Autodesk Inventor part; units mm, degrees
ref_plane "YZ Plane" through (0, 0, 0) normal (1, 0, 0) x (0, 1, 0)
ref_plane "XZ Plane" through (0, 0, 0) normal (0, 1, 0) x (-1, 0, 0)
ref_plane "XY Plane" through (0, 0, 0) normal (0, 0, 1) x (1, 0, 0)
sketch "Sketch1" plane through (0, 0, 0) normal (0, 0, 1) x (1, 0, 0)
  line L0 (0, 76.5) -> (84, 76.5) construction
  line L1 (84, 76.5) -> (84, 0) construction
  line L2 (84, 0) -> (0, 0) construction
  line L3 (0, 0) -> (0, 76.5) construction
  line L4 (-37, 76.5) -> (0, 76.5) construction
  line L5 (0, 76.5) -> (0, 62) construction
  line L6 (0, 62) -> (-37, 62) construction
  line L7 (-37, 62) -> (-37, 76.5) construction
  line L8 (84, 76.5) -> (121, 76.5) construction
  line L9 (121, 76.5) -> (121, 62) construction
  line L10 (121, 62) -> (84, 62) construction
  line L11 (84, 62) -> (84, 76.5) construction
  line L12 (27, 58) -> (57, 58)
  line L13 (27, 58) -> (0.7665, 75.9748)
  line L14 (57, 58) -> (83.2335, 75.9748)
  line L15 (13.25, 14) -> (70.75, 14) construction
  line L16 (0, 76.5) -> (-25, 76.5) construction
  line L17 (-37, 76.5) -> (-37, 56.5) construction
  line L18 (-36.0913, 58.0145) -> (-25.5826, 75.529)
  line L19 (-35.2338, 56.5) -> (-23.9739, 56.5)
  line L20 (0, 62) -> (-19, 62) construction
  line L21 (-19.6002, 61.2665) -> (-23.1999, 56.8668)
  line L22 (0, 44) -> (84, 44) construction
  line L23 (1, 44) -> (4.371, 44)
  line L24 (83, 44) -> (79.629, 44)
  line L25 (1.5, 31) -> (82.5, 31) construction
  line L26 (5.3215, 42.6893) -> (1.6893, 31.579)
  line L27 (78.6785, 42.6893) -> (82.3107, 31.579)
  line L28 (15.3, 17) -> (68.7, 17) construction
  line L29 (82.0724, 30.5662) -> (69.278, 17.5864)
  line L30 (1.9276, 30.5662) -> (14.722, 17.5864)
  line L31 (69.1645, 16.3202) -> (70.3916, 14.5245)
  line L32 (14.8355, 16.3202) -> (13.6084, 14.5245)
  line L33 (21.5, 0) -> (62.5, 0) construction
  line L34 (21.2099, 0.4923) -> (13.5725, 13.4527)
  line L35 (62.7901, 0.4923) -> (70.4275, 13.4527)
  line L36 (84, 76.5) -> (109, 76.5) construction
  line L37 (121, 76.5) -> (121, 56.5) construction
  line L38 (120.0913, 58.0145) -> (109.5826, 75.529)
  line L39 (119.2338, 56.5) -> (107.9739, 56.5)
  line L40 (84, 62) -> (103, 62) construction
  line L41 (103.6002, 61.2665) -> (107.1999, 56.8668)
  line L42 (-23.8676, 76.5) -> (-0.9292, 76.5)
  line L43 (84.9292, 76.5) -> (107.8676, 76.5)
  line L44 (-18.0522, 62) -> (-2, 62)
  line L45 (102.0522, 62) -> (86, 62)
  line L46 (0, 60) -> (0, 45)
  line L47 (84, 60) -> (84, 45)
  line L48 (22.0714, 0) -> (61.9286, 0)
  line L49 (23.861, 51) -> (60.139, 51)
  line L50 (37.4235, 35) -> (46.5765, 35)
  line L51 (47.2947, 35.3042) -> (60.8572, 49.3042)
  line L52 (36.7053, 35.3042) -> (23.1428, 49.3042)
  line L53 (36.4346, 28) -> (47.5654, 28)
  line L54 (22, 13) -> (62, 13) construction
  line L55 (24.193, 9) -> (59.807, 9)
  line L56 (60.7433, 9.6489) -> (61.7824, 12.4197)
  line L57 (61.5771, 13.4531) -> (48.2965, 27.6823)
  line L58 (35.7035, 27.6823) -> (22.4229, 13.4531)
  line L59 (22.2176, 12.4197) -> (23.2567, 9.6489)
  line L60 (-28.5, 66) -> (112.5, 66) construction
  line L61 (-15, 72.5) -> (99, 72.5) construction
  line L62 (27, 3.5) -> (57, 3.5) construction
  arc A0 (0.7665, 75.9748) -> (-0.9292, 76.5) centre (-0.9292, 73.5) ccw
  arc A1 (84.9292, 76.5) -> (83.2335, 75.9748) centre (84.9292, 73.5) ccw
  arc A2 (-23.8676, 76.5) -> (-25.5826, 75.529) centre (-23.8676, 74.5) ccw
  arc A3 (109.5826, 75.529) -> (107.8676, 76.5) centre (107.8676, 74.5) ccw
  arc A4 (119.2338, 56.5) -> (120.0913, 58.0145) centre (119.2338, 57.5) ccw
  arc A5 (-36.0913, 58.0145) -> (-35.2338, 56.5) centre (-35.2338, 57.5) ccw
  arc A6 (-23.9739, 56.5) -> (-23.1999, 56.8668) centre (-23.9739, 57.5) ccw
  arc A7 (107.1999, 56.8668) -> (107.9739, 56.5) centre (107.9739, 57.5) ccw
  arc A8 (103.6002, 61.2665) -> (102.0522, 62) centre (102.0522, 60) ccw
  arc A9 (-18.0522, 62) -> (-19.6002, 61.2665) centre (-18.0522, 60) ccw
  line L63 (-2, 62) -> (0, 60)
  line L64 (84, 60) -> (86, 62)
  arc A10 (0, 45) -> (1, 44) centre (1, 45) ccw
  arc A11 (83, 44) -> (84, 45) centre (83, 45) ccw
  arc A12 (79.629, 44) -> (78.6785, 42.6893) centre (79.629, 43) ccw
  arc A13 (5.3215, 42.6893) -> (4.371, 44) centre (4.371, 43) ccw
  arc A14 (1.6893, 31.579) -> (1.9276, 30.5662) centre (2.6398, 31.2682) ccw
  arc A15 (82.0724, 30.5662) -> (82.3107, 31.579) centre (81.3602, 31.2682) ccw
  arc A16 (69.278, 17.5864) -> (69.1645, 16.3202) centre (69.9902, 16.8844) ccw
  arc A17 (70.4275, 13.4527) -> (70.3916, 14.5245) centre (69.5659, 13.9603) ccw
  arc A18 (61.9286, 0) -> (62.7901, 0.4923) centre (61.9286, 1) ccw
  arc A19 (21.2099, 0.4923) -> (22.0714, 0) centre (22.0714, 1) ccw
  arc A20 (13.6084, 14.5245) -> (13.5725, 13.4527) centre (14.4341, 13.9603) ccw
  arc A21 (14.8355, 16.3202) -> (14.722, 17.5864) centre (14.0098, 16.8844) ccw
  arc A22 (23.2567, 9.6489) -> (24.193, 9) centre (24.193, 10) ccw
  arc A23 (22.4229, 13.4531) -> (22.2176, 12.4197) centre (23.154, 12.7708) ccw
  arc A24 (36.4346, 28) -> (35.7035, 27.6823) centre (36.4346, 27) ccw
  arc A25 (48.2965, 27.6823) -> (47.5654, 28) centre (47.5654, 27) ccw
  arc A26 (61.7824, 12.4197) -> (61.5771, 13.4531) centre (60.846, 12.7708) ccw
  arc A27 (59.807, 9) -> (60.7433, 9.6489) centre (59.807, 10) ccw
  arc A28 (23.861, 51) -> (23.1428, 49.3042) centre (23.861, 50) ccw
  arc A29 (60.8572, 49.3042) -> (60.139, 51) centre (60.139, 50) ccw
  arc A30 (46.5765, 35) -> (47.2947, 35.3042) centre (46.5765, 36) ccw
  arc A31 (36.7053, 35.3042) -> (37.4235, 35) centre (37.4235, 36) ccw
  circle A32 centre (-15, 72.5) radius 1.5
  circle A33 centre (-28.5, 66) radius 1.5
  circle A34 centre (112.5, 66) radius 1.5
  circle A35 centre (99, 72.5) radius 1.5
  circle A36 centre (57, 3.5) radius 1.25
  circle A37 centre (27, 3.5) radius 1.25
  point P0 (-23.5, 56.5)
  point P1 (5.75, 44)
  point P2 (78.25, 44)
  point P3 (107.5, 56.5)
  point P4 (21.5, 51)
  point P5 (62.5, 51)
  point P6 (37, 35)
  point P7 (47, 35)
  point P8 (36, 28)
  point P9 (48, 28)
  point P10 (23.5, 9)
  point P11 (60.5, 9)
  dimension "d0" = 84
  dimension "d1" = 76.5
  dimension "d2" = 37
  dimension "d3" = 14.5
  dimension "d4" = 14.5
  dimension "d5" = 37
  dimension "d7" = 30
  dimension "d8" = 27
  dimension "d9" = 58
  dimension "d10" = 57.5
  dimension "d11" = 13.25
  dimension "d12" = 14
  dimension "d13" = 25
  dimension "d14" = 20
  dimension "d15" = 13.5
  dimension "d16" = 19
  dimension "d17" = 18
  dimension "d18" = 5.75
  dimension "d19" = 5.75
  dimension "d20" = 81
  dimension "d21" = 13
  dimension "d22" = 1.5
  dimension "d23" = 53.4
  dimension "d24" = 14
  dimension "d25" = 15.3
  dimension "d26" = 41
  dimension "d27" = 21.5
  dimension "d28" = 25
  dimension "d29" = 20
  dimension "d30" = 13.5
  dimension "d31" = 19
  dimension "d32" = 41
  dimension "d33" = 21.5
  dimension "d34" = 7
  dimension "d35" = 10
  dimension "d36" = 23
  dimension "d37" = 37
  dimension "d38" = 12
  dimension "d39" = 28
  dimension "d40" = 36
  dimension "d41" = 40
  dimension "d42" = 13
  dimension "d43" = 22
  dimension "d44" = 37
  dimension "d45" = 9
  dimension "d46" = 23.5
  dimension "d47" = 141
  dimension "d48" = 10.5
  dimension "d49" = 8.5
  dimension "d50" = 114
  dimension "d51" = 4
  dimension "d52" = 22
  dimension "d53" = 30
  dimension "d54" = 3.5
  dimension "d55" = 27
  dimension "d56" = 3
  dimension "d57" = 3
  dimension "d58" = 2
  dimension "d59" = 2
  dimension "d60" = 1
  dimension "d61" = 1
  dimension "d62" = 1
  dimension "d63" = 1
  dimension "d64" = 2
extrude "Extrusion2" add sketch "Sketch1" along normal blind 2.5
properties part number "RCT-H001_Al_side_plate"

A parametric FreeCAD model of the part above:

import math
import FreeCAD as App
import Part
import Sketcher
Q = App.Units.Quantity

doc = App.newDocument("Part")
body = doc.addObject("PartDesign::Body", "Body")

sketch1 = body.newObject("Sketcher::SketchObject", "Sketch")
sketch1.AttachmentSupport = (doc.getObject("XY_Plane"), [""])
sketch1.MapMode = "FlatFace"
sketch1.addGeometry([
    Part.LineSegment(App.Vector(57, 58, 0), App.Vector(27, 58, 0)),
    Part.LineSegment(App.Vector(27, 58, 0), App.Vector(0.8, 76, 0)),
    Part.ArcOfCircle(Part.Circle(App.Vector(-0.9, 73.5, 0), App.Vector(0, 0, 1), 3), math.radians(56), math.radians(90)),
    Part.LineSegment(App.Vector(-0.9, 76.5, 0), App.Vector(-23.9, 76.5, 0)),
    Part.ArcOfCircle(Part.Circle(App.Vector(-23.9, 74.5, 0), App.Vector(0, 0, 1), 2), math.radians(90), math.radians(149)),
    Part.LineSegment(App.Vector(-25.6, 75.5, 0), App.Vector(-36.1, 58, 0)),
    Part.ArcOfCircle(Part.Circle(App.Vector(-35.2, 57.5, 0), App.Vector(0, 0, 1), 1), math.radians(149), math.radians(270)),
    Part.LineSegment(App.Vector(-35.2, 56.5, 0), App.Vector(-24, 56.5, 0)),
    Part.ArcOfCircle(Part.Circle(App.Vector(-24, 57.5, 0), App.Vector(0, 0, 1), 1), math.radians(-90), math.radians(-39)),
    Part.LineSegment(App.Vector(-23.2, 56.9, 0), App.Vector(-19.6, 61.3, 0)),
    Part.ArcOfCircle(Part.Circle(App.Vector(-18.1, 60, 0), App.Vector(0, 0, 1), 2), math.radians(90), math.radians(141)),
    Part.LineSegment(App.Vector(-18.1, 62, 0), App.Vector(-2, 62, 0)),
    Part.LineSegment(App.Vector(-2, 62, 0), App.Vector(0, 60, 0)),
    Part.LineSegment(App.Vector(0, 60, 0), App.Vector(0, 45, 0)),
    Part.ArcOfCircle(Part.Circle(App.Vector(1, 45, 0), App.Vector(0, 0, 1), 1), math.radians(180), math.radians(270)),
    Part.LineSegment(App.Vector(1, 44, 0), App.Vector(4.4, 44, 0)),
    Part.ArcOfCircle(Part.Circle(App.Vector(4.4, 43, 0), App.Vector(0, 0, 1), 1), math.radians(-18), math.radians(90)),
    Part.LineSegment(App.Vector(5.3, 42.7, 0), App.Vector(1.7, 31.6, 0)),
    Part.ArcOfCircle(Part.Circle(App.Vector(2.6, 31.3, 0), App.Vector(0, 0, 1), 1), math.radians(162), math.radians(225)),
    Part.LineSegment(App.Vector(1.9, 30.6, 0), App.Vector(14.7, 17.6, 0)),
    Part.ArcOfCircle(Part.Circle(App.Vector(14, 16.9, 0), App.Vector(0, 0, 1), 1), math.radians(-34), math.radians(45)),
    Part.LineSegment(App.Vector(14.8, 16.3, 0), App.Vector(13.6, 14.5, 0)),
    Part.ArcOfCircle(Part.Circle(App.Vector(14.4, 14, 0), App.Vector(0, 0, 1), 1), math.radians(146), math.radians(211)),
    Part.LineSegment(App.Vector(13.6, 13.5, 0), App.Vector(21.2, 0.5, 0)),
    Part.ArcOfCircle(Part.Circle(App.Vector(22.1, 1, 0), App.Vector(0, 0, 1), 1), math.radians(-149), math.radians(-90)),
    Part.LineSegment(App.Vector(22.1, 0, 0), App.Vector(61.9, 0, 0)),
    Part.ArcOfCircle(Part.Circle(App.Vector(61.9, 1, 0), App.Vector(0, 0, 1), 1), math.radians(-90), math.radians(-31)),
    Part.LineSegment(App.Vector(62.8, 0.5, 0), App.Vector(70.4, 13.5, 0)),
    Part.ArcOfCircle(Part.Circle(App.Vector(69.6, 14, 0), App.Vector(0, 0, 1), 1), math.radians(-31), math.radians(34)),
    Part.LineSegment(App.Vector(70.4, 14.5, 0), App.Vector(69.2, 16.3, 0)),
    Part.ArcOfCircle(Part.Circle(App.Vector(70, 16.9, 0), App.Vector(0, 0, 1), 1), math.radians(135), math.radians(214)),
    Part.LineSegment(App.Vector(69.3, 17.6, 0), App.Vector(82.1, 30.6, 0)),
    Part.ArcOfCircle(Part.Circle(App.Vector(81.4, 31.3, 0), App.Vector(0, 0, 1), 1), math.radians(-45), math.radians(18)),
    Part.LineSegment(App.Vector(82.3, 31.6, 0), App.Vector(78.7, 42.7, 0)),
    Part.ArcOfCircle(Part.Circle(App.Vector(79.6, 43, 0), App.Vector(0, 0, 1), 1), math.radians(90), math.radians(198)),
    Part.LineSegment(App.Vector(79.6, 44, 0), App.Vector(83, 44, 0)),
    Part.ArcOfCircle(Part.Circle(App.Vector(83, 45, 0), App.Vector(0, 0, 1), 1), math.radians(-90), math.radians(0)),
    Part.LineSegment(App.Vector(84, 45, 0), App.Vector(84, 60, 0)),
    Part.LineSegment(App.Vector(84, 60, 0), App.Vector(86, 62, 0)),
    Part.LineSegment(App.Vector(86, 62, 0), App.Vector(102.1, 62, 0)),
    Part.ArcOfCircle(Part.Circle(App.Vector(102.1, 60, 0), App.Vector(0, 0, 1), 2), math.radians(39), math.radians(90)),
    Part.LineSegment(App.Vector(103.6, 61.3, 0), App.Vector(107.2, 56.9, 0)),
    Part.ArcOfCircle(Part.Circle(App.Vector(108, 57.5, 0), App.Vector(0, 0, 1), 1), math.radians(-141), math.radians(-90)),
    Part.LineSegment(App.Vector(108, 56.5, 0), App.Vector(119.2, 56.5, 0)),
    Part.ArcOfCircle(Part.Circle(App.Vector(119.2, 57.5, 0), App.Vector(0, 0, 1), 1), math.radians(-90), math.radians(31)),
    Part.LineSegment(App.Vector(120.1, 58, 0), App.Vector(109.6, 75.5, 0)),
    Part.ArcOfCircle(Part.Circle(App.Vector(107.9, 74.5, 0), App.Vector(0, 0, 1), 2), math.radians(31), math.radians(90)),
    Part.LineSegment(App.Vector(107.9, 76.5, 0), App.Vector(84.9, 76.5, 0)),
    Part.ArcOfCircle(Part.Circle(App.Vector(84.9, 73.5, 0), App.Vector(0, 0, 1), 3), math.radians(90), math.radians(124)),
    Part.LineSegment(App.Vector(83.2, 76, 0), App.Vector(57, 58, 0)),
    Part.Circle(App.Vector(27, 3.5, 0), App.Vector(0, 0, 1), 1.2),
    Part.Circle(App.Vector(57, 3.5, 0), App.Vector(0, 0, 1), 1.2),
    Part.ArcOfCircle(Part.Circle(App.Vector(36.4, 27, 0), App.Vector(0, 0, 1), 1), math.radians(90), math.radians(137)),
    Part.LineSegment(App.Vector(36.4, 28, 0), App.Vector(47.6, 28, 0)),
    Part.ArcOfCircle(Part.Circle(App.Vector(47.6, 27, 0), App.Vector(0, 0, 1), 1), math.radians(43), math.radians(90)),
    Part.LineSegment(App.Vector(48.3, 27.7, 0), App.Vector(61.6, 13.5, 0)),
    Part.ArcOfCircle(Part.Circle(App.Vector(60.8, 12.8, 0), App.Vector(0, 0, 1), 1), math.radians(-21), math.radians(43)),
    Part.LineSegment(App.Vector(61.8, 12.4, 0), App.Vector(60.7, 9.6, 0)),
    Part.ArcOfCircle(Part.Circle(App.Vector(59.8, 10, 0), App.Vector(0, 0, 1), 1), math.radians(-90), math.radians(-21)),
    Part.LineSegment(App.Vector(59.8, 9, 0), App.Vector(24.2, 9, 0)),
    Part.ArcOfCircle(Part.Circle(App.Vector(24.2, 10, 0), App.Vector(0, 0, 1), 1), math.radians(-159), math.radians(-90)),
    Part.LineSegment(App.Vector(23.3, 9.6, 0), App.Vector(22.2, 12.4, 0)),
    Part.ArcOfCircle(Part.Circle(App.Vector(23.2, 12.8, 0), App.Vector(0, 0, 1), 1), math.radians(137), math.radians(201)),
    Part.LineSegment(App.Vector(22.4, 13.5, 0), App.Vector(35.7, 27.7, 0)),
    Part.ArcOfCircle(Part.Circle(App.Vector(23.9, 50, 0), App.Vector(0, 0, 1), 1), math.radians(90), math.radians(224)),
    Part.LineSegment(App.Vector(23.9, 51, 0), App.Vector(60.1, 51, 0)),
    Part.ArcOfCircle(Part.Circle(App.Vector(60.1, 50, 0), App.Vector(0, 0, 1), 1), math.radians(-44), math.radians(90)),
    Part.LineSegment(App.Vector(60.9, 49.3, 0), App.Vector(47.3, 35.3, 0)),
    Part.ArcOfCircle(Part.Circle(App.Vector(46.6, 36, 0), App.Vector(0, 0, 1), 1), math.radians(-90), math.radians(-44)),
    Part.LineSegment(App.Vector(46.6, 35, 0), App.Vector(37.4, 35, 0)),
    Part.ArcOfCircle(Part.Circle(App.Vector(37.4, 36, 0), App.Vector(0, 0, 1), 1), math.radians(-136), math.radians(-90)),
    Part.LineSegment(App.Vector(36.7, 35.3, 0), App.Vector(23.1, 49.3, 0)),
    Part.Circle(App.Vector(-28.5, 66, 0), App.Vector(0, 0, 1), 1.5),
    Part.Circle(App.Vector(-15, 72.5, 0), App.Vector(0, 0, 1), 1.5),
    Part.Circle(App.Vector(112.5, 66, 0), App.Vector(0, 0, 1), 1.5),
    Part.Circle(App.Vector(99, 72.5, 0), App.Vector(0, 0, 1), 1.5),
], False)
sketch1.addConstraint([
    Sketcher.Constraint("Coincident", 0, 2, 1, 1),
    Sketcher.Constraint("Tangent", 1, 2, 2, 1),
    Sketcher.Constraint("Tangent", 2, 2, 3, 1),
    Sketcher.Constraint("Tangent", 3, 2, 4, 1),
    Sketcher.Constraint("Tangent", 4, 2, 5, 1),
    Sketcher.Constraint("Tangent", 5, 2, 6, 1),
    Sketcher.Constraint("Tangent", 6, 2, 7, 1),
    Sketcher.Constraint("Tangent", 7, 2, 8, 1),
    Sketcher.Constraint("Tangent", 8, 2, 9, 1),
    Sketcher.Constraint("Tangent", 9, 2, 10, 2),
    Sketcher.Constraint("Tangent", 10, 1, 11, 1),
    Sketcher.Constraint("Coincident", 11, 2, 12, 1),
    Sketcher.Constraint("Coincident", 12, 2, 13, 1),
    Sketcher.Constraint("Tangent", 13, 2, 14, 1),
    Sketcher.Constraint("Tangent", 14, 2, 15, 1),
    Sketcher.Constraint("Tangent", 15, 2, 16, 2),
    Sketcher.Constraint("Tangent", 16, 1, 17, 1),
    Sketcher.Constraint("Tangent", 17, 2, 18, 1),
    Sketcher.Constraint("Tangent", 18, 2, 19, 1),
    Sketcher.Constraint("Tangent", 19, 2, 20, 2),
    Sketcher.Constraint("Tangent", 20, 1, 21, 1),
    Sketcher.Constraint("Tangent", 21, 2, 22, 1),
    Sketcher.Constraint("Tangent", 22, 2, 23, 1),
    Sketcher.Constraint("Tangent", 23, 2, 24, 1),
    Sketcher.Constraint("Tangent", 24, 2, 25, 1),
    Sketcher.Constraint("Tangent", 25, 2, 26, 1),
    Sketcher.Constraint("Tangent", 26, 2, 27, 1),
    Sketcher.Constraint("Tangent", 27, 2, 28, 1),
    Sketcher.Constraint("Tangent", 28, 2, 29, 1),
    Sketcher.Constraint("Tangent", 29, 2, 30, 2),
    Sketcher.Constraint("Tangent", 30, 1, 31, 1),
    Sketcher.Constraint("Tangent", 31, 2, 32, 1),
    Sketcher.Constraint("Tangent", 32, 2, 33, 1),
    Sketcher.Constraint("Tangent", 33, 2, 34, 2),
    Sketcher.Constraint("Tangent", 34, 1, 35, 1),
    Sketcher.Constraint("Tangent", 35, 2, 36, 1),
    Sketcher.Constraint("Tangent", 36, 2, 37, 1),
    Sketcher.Constraint("Coincident", 37, 2, 38, 1),
    Sketcher.Constraint("Coincident", 38, 2, 39, 1),
    Sketcher.Constraint("Tangent", 39, 2, 40, 2),
    Sketcher.Constraint("Tangent", 40, 1, 41, 1),
    Sketcher.Constraint("Tangent", 41, 2, 42, 1),
    Sketcher.Constraint("Tangent", 42, 2, 43, 1),
    Sketcher.Constraint("Tangent", 43, 2, 44, 1),
    Sketcher.Constraint("Tangent", 44, 2, 45, 1),
    Sketcher.Constraint("Tangent", 45, 2, 46, 1),
    Sketcher.Constraint("Tangent", 46, 2, 47, 1),
    Sketcher.Constraint("Tangent", 47, 2, 48, 1),
    Sketcher.Constraint("Tangent", 48, 2, 49, 1),
    Sketcher.Constraint("Coincident", 49, 2, 0, 1),
    Sketcher.Constraint("Tangent", 52, 1, 53, 1),
    Sketcher.Constraint("Tangent", 53, 2, 54, 2),
    Sketcher.Constraint("Tangent", 54, 1, 55, 1),
    Sketcher.Constraint("Tangent", 55, 2, 56, 2),
    Sketcher.Constraint("Tangent", 56, 1, 57, 1),
    Sketcher.Constraint("Tangent", 57, 2, 58, 2),
    Sketcher.Constraint("Tangent", 58, 1, 59, 1),
    Sketcher.Constraint("Tangent", 59, 2, 60, 2),
    Sketcher.Constraint("Tangent", 60, 1, 61, 1),
    Sketcher.Constraint("Tangent", 61, 2, 62, 2),
    Sketcher.Constraint("Tangent", 62, 1, 63, 1),
    Sketcher.Constraint("Tangent", 63, 2, 52, 2),
    Sketcher.Constraint("Tangent", 64, 1, 65, 1),
    Sketcher.Constraint("Tangent", 65, 2, 66, 2),
    Sketcher.Constraint("Tangent", 66, 1, 67, 1),
    Sketcher.Constraint("Tangent", 67, 2, 68, 2),
    Sketcher.Constraint("Tangent", 68, 1, 69, 1),
    Sketcher.Constraint("Tangent", 69, 2, 70, 2),
    Sketcher.Constraint("Tangent", 70, 1, 71, 1),
    Sketcher.Constraint("Tangent", 71, 2, 64, 2),
    Sketcher.Constraint("Horizontal", 0),
    Sketcher.Constraint("Horizontal", 3),
    Sketcher.Constraint("Horizontal", 7),
    Sketcher.Constraint("Horizontal", 11),
    Sketcher.Constraint("Vertical", 13),
    Sketcher.Constraint("Horizontal", 15),
    Sketcher.Constraint("Horizontal", 25),
    Sketcher.Constraint("Horizontal", 35),
    Sketcher.Constraint("Vertical", 37),
    Sketcher.Constraint("Horizontal", 39),
    Sketcher.Constraint("Horizontal", 43),
    Sketcher.Constraint("Horizontal", 47),
    Sketcher.Constraint("Horizontal", 53),
    Sketcher.Constraint("Horizontal", 59),
    Sketcher.Constraint("Horizontal", 65),
    Sketcher.Constraint("Horizontal", 69),
    Sketcher.Constraint("Equal", 6, 8),
    Sketcher.Constraint("Equal", 4, 10),
    Sketcher.Constraint("Equal", 8, 14),
    Sketcher.Constraint("Equal", 14, 16),
    Sketcher.Constraint("Equal", 16, 18),
    Sketcher.Constraint("Equal", 18, 20),
    Sketcher.Constraint("Equal", 20, 22),
    Sketcher.Constraint("Equal", 22, 24),
    Sketcher.Constraint("Equal", 24, 26),
    Sketcher.Constraint("Equal", 26, 28),
    Sketcher.Constraint("Equal", 28, 30),
    Sketcher.Constraint("Equal", 30, 32),
    Sketcher.Constraint("Equal", 32, 34),
    Sketcher.Constraint("Equal", 34, 36),
    Sketcher.Constraint("Equal", 10, 40),
    Sketcher.Constraint("Equal", 36, 42),
    Sketcher.Constraint("Equal", 42, 44),
    Sketcher.Constraint("Equal", 40, 46),
    Sketcher.Constraint("Equal", 2, 48),
    Sketcher.Constraint("Equal", 50, 51),
    Sketcher.Constraint("Equal", 44, 52),
    Sketcher.Constraint("Equal", 52, 54),
    Sketcher.Constraint("Equal", 54, 56),
    Sketcher.Constraint("Equal", 56, 58),
    Sketcher.Constraint("Equal", 58, 60),
    Sketcher.Constraint("Equal", 60, 62),
    Sketcher.Constraint("Equal", 62, 64),
    Sketcher.Constraint("Equal", 64, 66),
    Sketcher.Constraint("Equal", 66, 68),
    Sketcher.Constraint("Equal", 68, 70),
    Sketcher.Constraint("Equal", 72, 73),
    Sketcher.Constraint("Equal", 73, 74),
    Sketcher.Constraint("Equal", 74, 75),
    Sketcher.Constraint("PointOnObject", 12, 2, -2),
    Sketcher.Constraint("PointOnObject", 24, 2, -1),
    Sketcher.Constraint("Perpendicular", 12, 38),
    Sketcher.Constraint("Horizontal", 22, 3, 28, 3),
    Sketcher.Constraint("Horizontal", 20, 3, 30, 3),
    Sketcher.Constraint("Horizontal", 18, 3, 32, 3),
    Sketcher.Constraint("Horizontal", 16, 3, 34, 3),
    Sketcher.Constraint("Horizontal", 10, 3, 40, 3),
    Sketcher.Constraint("Horizontal", 8, 3, 42, 3),
    Sketcher.Constraint("Horizontal", 4, 3, 46, 3),
    Sketcher.Constraint("Horizontal", 50, 3, 51, 3),
    Sketcher.Constraint("Horizontal", 56, 3, 62, 3),
    Sketcher.Constraint("Horizontal", 72, 3, 74, 3),
    Sketcher.Constraint("Horizontal", 73, 3, 75, 3),
    Sketcher.Constraint("Horizontal", 40, 3, 12, 2),
    Sketcher.Constraint("Horizontal", 23, 2, 26, 2),
    Sketcher.Constraint("Horizontal", 21, 2, 28, 2),
    Sketcher.Constraint("Horizontal", 19, 2, 30, 1),
    Sketcher.Constraint("Horizontal", 17, 2, 32, 2),
    Sketcher.Constraint("Horizontal", 12, 2, 37, 2),
    Sketcher.Constraint("Horizontal", 9, 2, 40, 1),
    Sketcher.Constraint("Horizontal", 5, 2, 44, 2),
    Sketcher.Constraint("Horizontal", 1, 2, 48, 2),
    Sketcher.Constraint("Horizontal", 57, 2, 60, 1),
    Sketcher.Constraint("Horizontal", 55, 2, 62, 1),
    Sketcher.Constraint("Horizontal", 67, 2, 70, 1),
    Sketcher.Constraint("Vertical", 50, 3, 0, 2),
    Sketcher.Constraint("Vertical", 51, 3, 49, 2),
    Sketcher.Constraint("Equal", 15, 35),
    Sketcher.Constraint("Equal", 11, 39),
    Sketcher.Constraint("Equal", 7, 43),
    Sketcher.Constraint("Equal", 3, 47),
    Sketcher.Constraint("Equal", 12, 38),
    Sketcher.Constraint("Diameter", 72, 3.0),
    Sketcher.Constraint("Radius", 2, 3.0),
    Sketcher.Constraint("Radius", 4, 2.0),
    Sketcher.Constraint("Radius", 6, 1.0),
    Sketcher.Constraint("DistanceX", 0, 2, 0, 1, 30.0),
    Sketcher.Constraint("DistanceX", -1, 1, 50, 3, 27.0),
    Sketcher.Constraint("DistanceY", -1, 1, 52, 3, 27.0),
    Sketcher.Constraint("DistanceY", -1, 1, 58, 3, 10.0),
    Sketcher.Constraint("DistanceY", -1, 1, 68, 3, 36.0),
    Sketcher.Constraint("DistanceY", -1, 1, 0, 2, 58.0),
    Sketcher.Constraint("Diameter", 50, 2.5),
    Sketcher.Constraint("DistanceY", -1, 1, 6, 3, 57.5),
    Sketcher.Constraint("DistanceY", -1, 1, 50, 3, 3.5),
    Sketcher.Constraint("DistanceY", -1, 1, 2, 2, 76.5),
    Sketcher.Constraint("DistanceY", 13, 2, 13, 1, 15.0),
    Sketcher.Constraint("DistanceY", -1, 1, 10, 3, 60.0),
    Sketcher.Constraint("DistanceY", -1, 1, 64, 3, 50.0),
    Sketcher.Constraint("DistanceY", -1, 1, 72, 3, 66.0),
    Sketcher.Constraint("DistanceX", 73, 3, -1, 1, 15.0),
    Sketcher.Constraint("DistanceX", -1, 1, 75, 3, 99.0),
    Sketcher.Constraint("DistanceX", 7, 1, 7, 2, 11.26),
    Sketcher.Constraint("DistanceX", 72, 3, -1, 1, 28.5),
    Sketcher.Constraint("DistanceY", -1, 1, 73, 3, 72.5),
    Sketcher.Constraint("DistanceX", -1, 1, 74, 3, 112.5),
    Sketcher.Constraint("DistanceX", 8, 2, -1, 1, 23.2),
    Sketcher.Constraint("Angle", 9, Q("50.711 deg")),
    Sketcher.Constraint("Angle", 23, Q("-59.4897 deg")),
    Sketcher.Constraint("Angle", 67, Q("-134.0906 deg")),
    Sketcher.Constraint("DistanceX", 15, 1, 15, 2, 3.371),
    Sketcher.Constraint("DistanceX", 59, 2, 59, 1, 35.614),
    Sketcher.Constraint("DistanceX", 65, 1, 65, 2, 36.278),
    Sketcher.Constraint("DistanceX", -1, 1, 23, 2, 21.21),
    Sketcher.Constraint("Distance", 17, 11.689),
    Sketcher.Constraint("Distance", 21, 2.175),
    Sketcher.Constraint("Distance", 55, 19.464),
    Sketcher.Constraint("DistanceX", 3, 2, 3, 1, 22.9384),
    Sketcher.Constraint("DistanceX", 53, 1, 53, 2, 11.1308),
    Sketcher.Constraint("DistanceX", -1, 1, 22, 3, 14.434),
    Sketcher.Constraint("DistanceX", -1, 1, 56, 3, 60.846),
    Sketcher.Constraint("DistanceX", -1, 1, 58, 3, 59.807),
    Sketcher.Constraint("DistanceX", -1, 1, 64, 3, 23.861),
    Sketcher.Constraint("DistanceY", -1, 1, 4, 2, 75.529),
    Sketcher.Constraint("DistanceY", -1, 1, 17, 2, 31.579),
    Sketcher.Constraint("DistanceX", -1, 1, 19, 2, 14.722),
])
pad1 = body.newObject("PartDesign::Pad", "Pad")
pad1.Profile = sketch1
pad1.Length = 2.5

doc.recompute()
